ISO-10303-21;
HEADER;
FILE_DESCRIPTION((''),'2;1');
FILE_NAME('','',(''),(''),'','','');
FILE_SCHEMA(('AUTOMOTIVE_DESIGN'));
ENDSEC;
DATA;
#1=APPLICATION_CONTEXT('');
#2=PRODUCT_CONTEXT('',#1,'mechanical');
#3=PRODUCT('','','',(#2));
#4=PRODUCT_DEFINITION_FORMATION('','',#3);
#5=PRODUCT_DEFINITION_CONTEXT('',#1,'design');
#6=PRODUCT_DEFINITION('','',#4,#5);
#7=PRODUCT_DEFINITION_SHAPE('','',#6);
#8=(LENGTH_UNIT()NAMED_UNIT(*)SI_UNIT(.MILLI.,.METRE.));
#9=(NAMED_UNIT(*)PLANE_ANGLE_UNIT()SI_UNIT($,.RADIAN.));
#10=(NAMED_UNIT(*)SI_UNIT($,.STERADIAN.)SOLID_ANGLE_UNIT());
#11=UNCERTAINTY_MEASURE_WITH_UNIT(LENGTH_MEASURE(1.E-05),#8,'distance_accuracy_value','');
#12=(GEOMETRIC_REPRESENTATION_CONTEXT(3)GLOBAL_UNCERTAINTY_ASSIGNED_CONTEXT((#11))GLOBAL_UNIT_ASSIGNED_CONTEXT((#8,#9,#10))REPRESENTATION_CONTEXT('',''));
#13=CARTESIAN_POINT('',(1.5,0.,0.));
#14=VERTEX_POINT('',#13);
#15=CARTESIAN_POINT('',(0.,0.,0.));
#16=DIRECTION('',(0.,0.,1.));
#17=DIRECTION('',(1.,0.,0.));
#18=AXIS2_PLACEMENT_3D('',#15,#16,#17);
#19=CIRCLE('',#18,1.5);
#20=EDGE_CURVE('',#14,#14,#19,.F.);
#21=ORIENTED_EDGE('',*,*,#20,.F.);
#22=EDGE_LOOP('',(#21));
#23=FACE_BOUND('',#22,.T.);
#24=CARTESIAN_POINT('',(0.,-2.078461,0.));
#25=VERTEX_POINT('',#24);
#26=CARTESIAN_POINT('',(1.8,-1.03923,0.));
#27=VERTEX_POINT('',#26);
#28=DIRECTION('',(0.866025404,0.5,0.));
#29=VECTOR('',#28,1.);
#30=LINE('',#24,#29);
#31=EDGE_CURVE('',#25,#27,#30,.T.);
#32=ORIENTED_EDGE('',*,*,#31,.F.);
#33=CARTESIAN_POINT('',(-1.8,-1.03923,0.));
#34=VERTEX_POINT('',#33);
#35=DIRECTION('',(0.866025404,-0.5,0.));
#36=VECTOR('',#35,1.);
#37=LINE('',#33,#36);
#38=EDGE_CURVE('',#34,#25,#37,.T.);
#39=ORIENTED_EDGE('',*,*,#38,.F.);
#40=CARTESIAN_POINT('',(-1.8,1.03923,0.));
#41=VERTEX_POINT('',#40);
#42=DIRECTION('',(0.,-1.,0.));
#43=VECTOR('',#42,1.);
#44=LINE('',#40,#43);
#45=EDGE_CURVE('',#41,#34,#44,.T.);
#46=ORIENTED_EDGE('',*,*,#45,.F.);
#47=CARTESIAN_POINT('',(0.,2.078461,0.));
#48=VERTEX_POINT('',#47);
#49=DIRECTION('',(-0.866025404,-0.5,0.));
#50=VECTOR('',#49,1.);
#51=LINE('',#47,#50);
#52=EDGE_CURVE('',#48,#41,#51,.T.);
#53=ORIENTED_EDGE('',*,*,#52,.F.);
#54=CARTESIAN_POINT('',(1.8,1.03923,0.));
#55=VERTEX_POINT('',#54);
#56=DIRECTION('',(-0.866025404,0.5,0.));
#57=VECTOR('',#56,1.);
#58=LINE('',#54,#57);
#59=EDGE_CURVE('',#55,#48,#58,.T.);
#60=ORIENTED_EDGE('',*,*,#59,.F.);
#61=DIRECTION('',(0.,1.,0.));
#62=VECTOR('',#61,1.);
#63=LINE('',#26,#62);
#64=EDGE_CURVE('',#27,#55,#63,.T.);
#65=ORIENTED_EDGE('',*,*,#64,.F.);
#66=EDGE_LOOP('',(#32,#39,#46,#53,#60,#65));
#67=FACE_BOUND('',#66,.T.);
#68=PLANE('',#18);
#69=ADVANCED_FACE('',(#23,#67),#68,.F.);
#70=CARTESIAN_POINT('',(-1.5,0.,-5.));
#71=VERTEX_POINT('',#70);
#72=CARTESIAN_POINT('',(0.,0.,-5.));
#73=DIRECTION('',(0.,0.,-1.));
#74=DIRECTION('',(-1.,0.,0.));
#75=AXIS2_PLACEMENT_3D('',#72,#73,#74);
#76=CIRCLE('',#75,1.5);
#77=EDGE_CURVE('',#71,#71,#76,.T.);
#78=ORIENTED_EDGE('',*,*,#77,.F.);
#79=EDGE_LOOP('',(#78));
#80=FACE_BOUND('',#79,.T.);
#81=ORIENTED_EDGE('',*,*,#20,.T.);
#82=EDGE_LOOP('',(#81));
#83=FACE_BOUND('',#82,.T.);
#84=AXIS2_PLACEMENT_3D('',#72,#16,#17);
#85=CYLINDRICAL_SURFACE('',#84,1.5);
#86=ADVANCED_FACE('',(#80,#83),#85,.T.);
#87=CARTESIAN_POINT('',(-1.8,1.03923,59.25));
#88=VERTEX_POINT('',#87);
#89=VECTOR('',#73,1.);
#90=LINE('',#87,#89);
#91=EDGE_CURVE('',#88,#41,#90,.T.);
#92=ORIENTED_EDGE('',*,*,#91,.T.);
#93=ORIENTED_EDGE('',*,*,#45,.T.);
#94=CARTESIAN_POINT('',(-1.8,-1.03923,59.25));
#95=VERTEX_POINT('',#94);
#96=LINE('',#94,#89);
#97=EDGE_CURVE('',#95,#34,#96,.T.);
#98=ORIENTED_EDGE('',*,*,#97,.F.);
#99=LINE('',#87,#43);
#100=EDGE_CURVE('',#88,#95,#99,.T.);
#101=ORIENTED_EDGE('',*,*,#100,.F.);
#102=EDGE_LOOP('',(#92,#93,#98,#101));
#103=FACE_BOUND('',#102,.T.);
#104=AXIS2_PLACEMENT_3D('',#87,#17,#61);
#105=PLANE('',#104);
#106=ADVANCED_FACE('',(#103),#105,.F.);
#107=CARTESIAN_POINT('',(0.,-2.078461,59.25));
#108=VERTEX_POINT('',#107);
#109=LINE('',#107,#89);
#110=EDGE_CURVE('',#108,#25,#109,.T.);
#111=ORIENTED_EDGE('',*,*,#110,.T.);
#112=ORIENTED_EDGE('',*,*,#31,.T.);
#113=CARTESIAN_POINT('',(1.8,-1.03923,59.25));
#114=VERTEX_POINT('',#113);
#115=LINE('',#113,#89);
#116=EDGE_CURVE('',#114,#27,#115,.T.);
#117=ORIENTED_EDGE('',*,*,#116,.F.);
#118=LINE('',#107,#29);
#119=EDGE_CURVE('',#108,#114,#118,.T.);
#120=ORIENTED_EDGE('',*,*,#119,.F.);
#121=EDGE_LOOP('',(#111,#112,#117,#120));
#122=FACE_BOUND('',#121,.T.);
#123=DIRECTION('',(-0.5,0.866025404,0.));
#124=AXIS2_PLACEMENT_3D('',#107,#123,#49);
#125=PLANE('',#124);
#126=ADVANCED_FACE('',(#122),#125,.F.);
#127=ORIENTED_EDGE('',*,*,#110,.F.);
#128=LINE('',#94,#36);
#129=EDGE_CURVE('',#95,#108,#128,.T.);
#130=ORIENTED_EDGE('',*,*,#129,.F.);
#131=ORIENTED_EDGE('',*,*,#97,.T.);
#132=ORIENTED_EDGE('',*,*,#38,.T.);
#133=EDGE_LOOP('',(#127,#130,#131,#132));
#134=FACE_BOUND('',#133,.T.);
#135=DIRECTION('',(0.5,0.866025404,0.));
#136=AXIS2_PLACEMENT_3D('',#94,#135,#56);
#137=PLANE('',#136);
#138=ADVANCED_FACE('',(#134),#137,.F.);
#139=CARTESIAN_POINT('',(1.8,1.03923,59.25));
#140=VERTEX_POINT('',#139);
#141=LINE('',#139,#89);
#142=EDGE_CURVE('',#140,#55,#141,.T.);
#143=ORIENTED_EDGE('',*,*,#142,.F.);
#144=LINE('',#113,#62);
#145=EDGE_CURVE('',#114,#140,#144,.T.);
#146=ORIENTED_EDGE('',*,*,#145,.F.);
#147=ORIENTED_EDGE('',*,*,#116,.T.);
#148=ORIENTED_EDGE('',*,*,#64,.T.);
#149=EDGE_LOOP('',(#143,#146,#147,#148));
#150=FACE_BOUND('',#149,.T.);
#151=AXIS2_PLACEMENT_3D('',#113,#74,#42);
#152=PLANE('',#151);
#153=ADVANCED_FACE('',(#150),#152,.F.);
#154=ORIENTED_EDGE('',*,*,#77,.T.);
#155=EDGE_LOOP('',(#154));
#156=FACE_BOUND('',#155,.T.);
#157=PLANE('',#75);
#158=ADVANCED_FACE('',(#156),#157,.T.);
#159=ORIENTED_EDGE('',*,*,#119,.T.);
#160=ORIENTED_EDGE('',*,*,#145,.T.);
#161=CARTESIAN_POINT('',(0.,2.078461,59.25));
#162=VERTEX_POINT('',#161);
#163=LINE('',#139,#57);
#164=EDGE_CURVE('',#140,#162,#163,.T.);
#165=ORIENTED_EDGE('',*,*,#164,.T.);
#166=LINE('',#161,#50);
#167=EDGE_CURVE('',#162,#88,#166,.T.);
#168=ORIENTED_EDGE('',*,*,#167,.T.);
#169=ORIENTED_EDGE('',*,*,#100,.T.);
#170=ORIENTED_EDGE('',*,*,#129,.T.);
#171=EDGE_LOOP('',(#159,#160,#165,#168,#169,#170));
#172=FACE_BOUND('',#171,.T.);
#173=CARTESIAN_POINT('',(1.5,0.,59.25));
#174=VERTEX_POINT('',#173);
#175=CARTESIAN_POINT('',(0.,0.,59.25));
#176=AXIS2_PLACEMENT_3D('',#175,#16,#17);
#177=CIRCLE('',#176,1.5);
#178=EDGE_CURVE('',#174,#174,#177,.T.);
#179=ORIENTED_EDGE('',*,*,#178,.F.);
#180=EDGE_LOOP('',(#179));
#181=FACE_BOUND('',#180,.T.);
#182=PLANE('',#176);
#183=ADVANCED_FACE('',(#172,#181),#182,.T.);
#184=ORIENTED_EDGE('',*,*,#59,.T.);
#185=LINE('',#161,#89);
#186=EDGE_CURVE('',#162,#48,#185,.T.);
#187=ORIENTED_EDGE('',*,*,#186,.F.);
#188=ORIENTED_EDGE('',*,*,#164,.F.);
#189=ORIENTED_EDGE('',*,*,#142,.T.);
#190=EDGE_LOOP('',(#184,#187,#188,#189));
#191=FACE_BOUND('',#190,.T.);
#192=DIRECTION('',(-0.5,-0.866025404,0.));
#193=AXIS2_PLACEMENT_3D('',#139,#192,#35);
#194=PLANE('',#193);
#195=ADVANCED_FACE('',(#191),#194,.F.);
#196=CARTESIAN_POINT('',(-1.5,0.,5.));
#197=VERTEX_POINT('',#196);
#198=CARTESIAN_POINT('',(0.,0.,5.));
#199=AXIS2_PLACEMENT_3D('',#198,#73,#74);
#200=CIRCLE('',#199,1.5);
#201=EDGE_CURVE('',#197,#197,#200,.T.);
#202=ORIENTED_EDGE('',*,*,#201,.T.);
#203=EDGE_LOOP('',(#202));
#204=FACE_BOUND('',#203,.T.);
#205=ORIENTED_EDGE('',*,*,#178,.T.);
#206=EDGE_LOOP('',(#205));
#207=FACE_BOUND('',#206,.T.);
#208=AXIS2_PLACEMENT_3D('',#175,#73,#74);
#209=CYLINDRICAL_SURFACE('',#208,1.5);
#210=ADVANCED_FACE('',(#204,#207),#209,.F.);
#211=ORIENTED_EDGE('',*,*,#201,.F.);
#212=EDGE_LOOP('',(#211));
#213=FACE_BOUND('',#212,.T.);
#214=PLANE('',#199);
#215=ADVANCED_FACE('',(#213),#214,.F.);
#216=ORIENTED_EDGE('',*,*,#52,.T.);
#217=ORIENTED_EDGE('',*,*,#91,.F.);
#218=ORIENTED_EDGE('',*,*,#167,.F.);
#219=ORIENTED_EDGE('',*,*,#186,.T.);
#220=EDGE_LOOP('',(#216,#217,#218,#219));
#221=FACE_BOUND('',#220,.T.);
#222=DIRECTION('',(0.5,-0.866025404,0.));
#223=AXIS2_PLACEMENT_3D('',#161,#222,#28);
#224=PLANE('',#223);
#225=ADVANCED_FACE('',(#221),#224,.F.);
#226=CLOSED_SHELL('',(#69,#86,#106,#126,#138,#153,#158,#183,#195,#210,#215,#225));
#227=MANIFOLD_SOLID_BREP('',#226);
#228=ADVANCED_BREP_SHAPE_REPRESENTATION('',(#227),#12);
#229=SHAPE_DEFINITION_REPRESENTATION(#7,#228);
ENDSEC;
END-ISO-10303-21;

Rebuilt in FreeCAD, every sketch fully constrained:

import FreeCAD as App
import Part
import Sketcher
Q = App.Units.Quantity

doc = App.newDocument("Part")
body = doc.addObject("PartDesign::Body", "Body")

sketch1 = body.newObject("Sketcher::SketchObject", "Sketch")
sketch1.AttachmentSupport = (doc.getObject("XY_Plane"), [""])
sketch1.MapMode = "FlatFace"
sketch1.addGeometry([
    Part.LineSegment(App.Vector(0, 2.1, 0), App.Vector(-1.8, 1, 0)),
    Part.LineSegment(App.Vector(-1.8, 1, 0), App.Vector(-1.8, -1, 0)),
    Part.LineSegment(App.Vector(-1.8, -1, 0), App.Vector(0, -2.1, 0)),
    Part.LineSegment(App.Vector(0, -2.1, 0), App.Vector(1.8, -1, 0)),
    Part.LineSegment(App.Vector(1.8, -1, 0), App.Vector(1.8, 1, 0)),
    Part.LineSegment(App.Vector(1.8, 1, 0), App.Vector(0, 2.1, 0)),
    Part.Circle(App.Vector(0, 0, 0), App.Vector(0, 0, 1), 1.5),
], False)
sketch1.addConstraint([
    Sketcher.Constraint("Coincident", 0, 2, 1, 1),
    Sketcher.Constraint("Coincident", 1, 2, 2, 1),
    Sketcher.Constraint("Coincident", 2, 2, 3, 1),
    Sketcher.Constraint("Coincident", 3, 2, 4, 1),
    Sketcher.Constraint("Coincident", 4, 2, 5, 1),
    Sketcher.Constraint("Coincident", 5, 2, 0, 1),
    Sketcher.Constraint("Vertical", 1),
    Sketcher.Constraint("Vertical", 4),
    Sketcher.Constraint("Coincident", 6, 3, -1, 1),
    Sketcher.Constraint("Symmetric", 0, 2, 3, 2, -1, 1),
    Sketcher.Constraint("Symmetric", 2, 2, 5, 2, -1, 1),
    Sketcher.Constraint("PointOnObject", 2, 2, -2),
    Sketcher.Constraint("Parallel", 2, 5),
    Sketcher.Constraint("Horizontal", 1, 2, 3, 2),
    Sketcher.Constraint("Diameter", 6, Q("3 mm")),
    Sketcher.Constraint("Angle", 0, Q("-150 deg")),
    Sketcher.Constraint("DistanceX", 0, 2, -1, 1, Q("1.8 mm")),
    Sketcher.Constraint("DistanceY", 1, 2, 1, 1, Q("2.078461 mm")),
])
pad1 = body.newObject("PartDesign::Pad", "Pad")
pad1.Profile = sketch1
pad1.Length = 59.25

sketch2 = body.newObject("Sketcher::SketchObject", "Sketch001")
sketch2.AttachmentSupport = (doc.getObject("XY_Plane"), [""])
sketch2.MapMode = "FlatFace"
sketch2.addGeometry(Part.Circle(App.Vector(0, 0, 0), App.Vector(0, 0, 1), 1.5), False)
sketch2.addConstraint([
    Sketcher.Constraint("Coincident", 0, 3, -1, 1),
    Sketcher.Constraint("Diameter", 0, Q("3 mm")),
])
pad2 = body.newObject("PartDesign::Pad", "Pad001")
pad2.Profile = sketch2
pad2.Length = 10
pad2.Midplane = True

doc.recompute()
